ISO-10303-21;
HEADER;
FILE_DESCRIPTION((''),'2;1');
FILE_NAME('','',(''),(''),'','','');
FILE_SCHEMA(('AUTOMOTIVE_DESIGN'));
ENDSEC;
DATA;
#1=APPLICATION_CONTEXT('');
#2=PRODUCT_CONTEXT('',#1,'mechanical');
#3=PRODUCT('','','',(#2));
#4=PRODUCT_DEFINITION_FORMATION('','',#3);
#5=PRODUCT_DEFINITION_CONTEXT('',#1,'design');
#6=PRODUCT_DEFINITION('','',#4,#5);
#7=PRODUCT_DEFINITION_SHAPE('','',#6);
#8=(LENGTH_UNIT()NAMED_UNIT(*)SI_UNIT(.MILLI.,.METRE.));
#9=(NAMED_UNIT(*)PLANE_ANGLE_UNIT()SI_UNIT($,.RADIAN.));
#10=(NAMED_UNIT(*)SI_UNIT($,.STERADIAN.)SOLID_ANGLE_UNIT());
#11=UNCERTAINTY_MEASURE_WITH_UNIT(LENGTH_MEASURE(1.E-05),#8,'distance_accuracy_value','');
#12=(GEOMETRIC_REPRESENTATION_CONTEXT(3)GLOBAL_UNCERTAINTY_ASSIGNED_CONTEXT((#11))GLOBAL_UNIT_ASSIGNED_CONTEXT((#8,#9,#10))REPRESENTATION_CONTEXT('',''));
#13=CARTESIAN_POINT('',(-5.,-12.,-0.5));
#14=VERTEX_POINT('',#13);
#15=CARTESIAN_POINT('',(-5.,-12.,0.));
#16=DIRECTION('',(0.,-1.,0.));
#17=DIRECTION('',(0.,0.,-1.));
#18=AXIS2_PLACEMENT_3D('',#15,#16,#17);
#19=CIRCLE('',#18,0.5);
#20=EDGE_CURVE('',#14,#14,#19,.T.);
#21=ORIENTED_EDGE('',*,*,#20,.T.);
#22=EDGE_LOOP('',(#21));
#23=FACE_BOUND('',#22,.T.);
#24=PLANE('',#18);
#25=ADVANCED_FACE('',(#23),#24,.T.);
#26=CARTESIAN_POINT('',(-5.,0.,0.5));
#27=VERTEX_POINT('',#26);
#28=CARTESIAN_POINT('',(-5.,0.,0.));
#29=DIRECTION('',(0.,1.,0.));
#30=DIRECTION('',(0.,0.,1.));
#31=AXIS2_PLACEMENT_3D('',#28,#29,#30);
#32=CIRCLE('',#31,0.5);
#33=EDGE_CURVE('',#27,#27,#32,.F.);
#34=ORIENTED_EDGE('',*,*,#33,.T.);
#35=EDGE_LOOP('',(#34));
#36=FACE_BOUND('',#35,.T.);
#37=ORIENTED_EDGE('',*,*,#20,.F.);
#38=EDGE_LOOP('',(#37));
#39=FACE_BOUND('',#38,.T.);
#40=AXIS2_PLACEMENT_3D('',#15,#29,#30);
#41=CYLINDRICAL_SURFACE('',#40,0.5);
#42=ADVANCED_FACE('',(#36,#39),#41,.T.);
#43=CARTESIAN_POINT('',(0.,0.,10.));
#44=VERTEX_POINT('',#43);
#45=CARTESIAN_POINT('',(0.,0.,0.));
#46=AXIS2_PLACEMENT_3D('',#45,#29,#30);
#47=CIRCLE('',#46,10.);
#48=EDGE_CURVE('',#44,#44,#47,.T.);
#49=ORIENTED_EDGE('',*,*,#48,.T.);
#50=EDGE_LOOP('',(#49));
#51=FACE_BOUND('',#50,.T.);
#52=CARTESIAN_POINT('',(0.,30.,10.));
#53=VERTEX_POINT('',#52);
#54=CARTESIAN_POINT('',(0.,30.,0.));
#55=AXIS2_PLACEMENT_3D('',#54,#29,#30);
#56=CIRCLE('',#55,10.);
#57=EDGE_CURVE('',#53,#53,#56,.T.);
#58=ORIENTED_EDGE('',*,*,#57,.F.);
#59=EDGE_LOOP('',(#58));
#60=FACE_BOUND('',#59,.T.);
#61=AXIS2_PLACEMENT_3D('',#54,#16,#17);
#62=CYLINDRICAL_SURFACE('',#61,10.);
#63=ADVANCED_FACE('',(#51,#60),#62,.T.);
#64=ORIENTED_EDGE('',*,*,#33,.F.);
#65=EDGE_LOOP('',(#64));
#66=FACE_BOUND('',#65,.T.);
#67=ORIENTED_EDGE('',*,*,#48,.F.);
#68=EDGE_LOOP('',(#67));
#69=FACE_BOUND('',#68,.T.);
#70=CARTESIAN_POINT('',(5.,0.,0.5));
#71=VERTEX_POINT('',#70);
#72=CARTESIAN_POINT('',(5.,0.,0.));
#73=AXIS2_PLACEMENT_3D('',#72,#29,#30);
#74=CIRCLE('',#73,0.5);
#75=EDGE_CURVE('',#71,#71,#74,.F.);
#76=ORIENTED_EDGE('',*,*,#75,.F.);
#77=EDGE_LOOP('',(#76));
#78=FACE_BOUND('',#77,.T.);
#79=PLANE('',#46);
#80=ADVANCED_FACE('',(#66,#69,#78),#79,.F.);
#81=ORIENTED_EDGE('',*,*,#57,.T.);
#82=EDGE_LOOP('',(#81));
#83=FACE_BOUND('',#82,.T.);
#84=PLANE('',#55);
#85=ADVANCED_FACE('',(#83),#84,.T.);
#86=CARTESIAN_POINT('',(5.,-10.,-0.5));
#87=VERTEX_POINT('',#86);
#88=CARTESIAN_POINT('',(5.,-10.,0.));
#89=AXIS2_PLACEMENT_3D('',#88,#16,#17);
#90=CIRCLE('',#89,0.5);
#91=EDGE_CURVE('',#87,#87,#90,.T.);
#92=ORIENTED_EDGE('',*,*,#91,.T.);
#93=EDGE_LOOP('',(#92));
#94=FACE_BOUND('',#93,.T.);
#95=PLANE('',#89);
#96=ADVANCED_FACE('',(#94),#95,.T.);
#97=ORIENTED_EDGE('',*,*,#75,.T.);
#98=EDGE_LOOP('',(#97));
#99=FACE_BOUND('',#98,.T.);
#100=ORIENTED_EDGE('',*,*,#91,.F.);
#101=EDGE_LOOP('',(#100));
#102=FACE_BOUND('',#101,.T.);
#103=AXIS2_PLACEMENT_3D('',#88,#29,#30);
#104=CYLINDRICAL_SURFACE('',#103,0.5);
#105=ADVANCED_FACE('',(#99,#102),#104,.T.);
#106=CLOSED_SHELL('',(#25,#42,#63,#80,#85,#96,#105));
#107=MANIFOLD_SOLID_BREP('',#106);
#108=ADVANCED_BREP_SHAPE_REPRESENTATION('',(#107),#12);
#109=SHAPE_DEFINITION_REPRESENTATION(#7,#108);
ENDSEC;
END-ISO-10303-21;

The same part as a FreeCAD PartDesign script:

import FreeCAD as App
import Part
import Sketcher
from FreeCAD import Vector
Q = App.Units.Quantity

doc = App.newDocument("Part")
body = doc.addObject("PartDesign::Body", "Body")

# Sketch on XZ plane
sketch1 = body.newObject("Sketcher::SketchObject", "Sketch")
sketch1.AttachmentSupport = (doc.getObject("XZ_Plane"), [""])
sketch1.MapMode = "FlatFace"
sketch1.addGeometry(Part.Circle(Vector(0, 0, 0), Vector(0, 0, 1), 10), False)
sketch1.addConstraint([
    Sketcher.Constraint("Coincident", 0, 3, -1, 1),
    Sketcher.Constraint("Diameter", 0, Q("20 mm")),
])
pad1 = body.newObject("PartDesign::Pad", "Pad")
pad1.Profile = sketch1
pad1.Length = 30
pad1.Reversed = True

# Sketch on XZ plane
sketch2 = body.newObject("Sketcher::SketchObject", "Sketch001")
sketch2.AttachmentSupport = (doc.getObject("XZ_Plane"), [""])
sketch2.MapMode = "FlatFace"
sketch2.addGeometry(Part.Circle(Vector(-5, 0, 0), Vector(0, 0, 1), 0.5), False)
sketch2.addConstraint([
    Sketcher.Constraint("PointOnObject", 0, 3, -1),
    Sketcher.Constraint("Diameter", 0, Q("1 mm")),
    Sketcher.Constraint("DistanceX", 0, 3, -1, 1, Q("5 mm")),
])
pad2 = body.newObject("PartDesign::Pad", "Pad001")
pad2.Profile = sketch2
pad2.Length = 12

# Sketch on XZ plane
sketch3 = body.newObject("Sketcher::SketchObject", "Sketch002")
sketch3.AttachmentSupport = (doc.getObject("XZ_Plane"), [""])
sketch3.MapMode = "FlatFace"
sketch3.addGeometry(Part.Circle(Vector(5, 0, 0), Vector(0, 0, 1), 0.5), False)
sketch3.addConstraint([
    Sketcher.Constraint("PointOnObject", 0, 3, -1),
    Sketcher.Constraint("Diameter", 0, Q("1 mm")),
    Sketcher.Constraint("DistanceX", -1, 1, 0, 3, Q("5 mm")),
])
pad3 = body.newObject("PartDesign::Pad", "Pad002")
pad3.Profile = sketch3
pad3.Length = 10

doc.recompute()
